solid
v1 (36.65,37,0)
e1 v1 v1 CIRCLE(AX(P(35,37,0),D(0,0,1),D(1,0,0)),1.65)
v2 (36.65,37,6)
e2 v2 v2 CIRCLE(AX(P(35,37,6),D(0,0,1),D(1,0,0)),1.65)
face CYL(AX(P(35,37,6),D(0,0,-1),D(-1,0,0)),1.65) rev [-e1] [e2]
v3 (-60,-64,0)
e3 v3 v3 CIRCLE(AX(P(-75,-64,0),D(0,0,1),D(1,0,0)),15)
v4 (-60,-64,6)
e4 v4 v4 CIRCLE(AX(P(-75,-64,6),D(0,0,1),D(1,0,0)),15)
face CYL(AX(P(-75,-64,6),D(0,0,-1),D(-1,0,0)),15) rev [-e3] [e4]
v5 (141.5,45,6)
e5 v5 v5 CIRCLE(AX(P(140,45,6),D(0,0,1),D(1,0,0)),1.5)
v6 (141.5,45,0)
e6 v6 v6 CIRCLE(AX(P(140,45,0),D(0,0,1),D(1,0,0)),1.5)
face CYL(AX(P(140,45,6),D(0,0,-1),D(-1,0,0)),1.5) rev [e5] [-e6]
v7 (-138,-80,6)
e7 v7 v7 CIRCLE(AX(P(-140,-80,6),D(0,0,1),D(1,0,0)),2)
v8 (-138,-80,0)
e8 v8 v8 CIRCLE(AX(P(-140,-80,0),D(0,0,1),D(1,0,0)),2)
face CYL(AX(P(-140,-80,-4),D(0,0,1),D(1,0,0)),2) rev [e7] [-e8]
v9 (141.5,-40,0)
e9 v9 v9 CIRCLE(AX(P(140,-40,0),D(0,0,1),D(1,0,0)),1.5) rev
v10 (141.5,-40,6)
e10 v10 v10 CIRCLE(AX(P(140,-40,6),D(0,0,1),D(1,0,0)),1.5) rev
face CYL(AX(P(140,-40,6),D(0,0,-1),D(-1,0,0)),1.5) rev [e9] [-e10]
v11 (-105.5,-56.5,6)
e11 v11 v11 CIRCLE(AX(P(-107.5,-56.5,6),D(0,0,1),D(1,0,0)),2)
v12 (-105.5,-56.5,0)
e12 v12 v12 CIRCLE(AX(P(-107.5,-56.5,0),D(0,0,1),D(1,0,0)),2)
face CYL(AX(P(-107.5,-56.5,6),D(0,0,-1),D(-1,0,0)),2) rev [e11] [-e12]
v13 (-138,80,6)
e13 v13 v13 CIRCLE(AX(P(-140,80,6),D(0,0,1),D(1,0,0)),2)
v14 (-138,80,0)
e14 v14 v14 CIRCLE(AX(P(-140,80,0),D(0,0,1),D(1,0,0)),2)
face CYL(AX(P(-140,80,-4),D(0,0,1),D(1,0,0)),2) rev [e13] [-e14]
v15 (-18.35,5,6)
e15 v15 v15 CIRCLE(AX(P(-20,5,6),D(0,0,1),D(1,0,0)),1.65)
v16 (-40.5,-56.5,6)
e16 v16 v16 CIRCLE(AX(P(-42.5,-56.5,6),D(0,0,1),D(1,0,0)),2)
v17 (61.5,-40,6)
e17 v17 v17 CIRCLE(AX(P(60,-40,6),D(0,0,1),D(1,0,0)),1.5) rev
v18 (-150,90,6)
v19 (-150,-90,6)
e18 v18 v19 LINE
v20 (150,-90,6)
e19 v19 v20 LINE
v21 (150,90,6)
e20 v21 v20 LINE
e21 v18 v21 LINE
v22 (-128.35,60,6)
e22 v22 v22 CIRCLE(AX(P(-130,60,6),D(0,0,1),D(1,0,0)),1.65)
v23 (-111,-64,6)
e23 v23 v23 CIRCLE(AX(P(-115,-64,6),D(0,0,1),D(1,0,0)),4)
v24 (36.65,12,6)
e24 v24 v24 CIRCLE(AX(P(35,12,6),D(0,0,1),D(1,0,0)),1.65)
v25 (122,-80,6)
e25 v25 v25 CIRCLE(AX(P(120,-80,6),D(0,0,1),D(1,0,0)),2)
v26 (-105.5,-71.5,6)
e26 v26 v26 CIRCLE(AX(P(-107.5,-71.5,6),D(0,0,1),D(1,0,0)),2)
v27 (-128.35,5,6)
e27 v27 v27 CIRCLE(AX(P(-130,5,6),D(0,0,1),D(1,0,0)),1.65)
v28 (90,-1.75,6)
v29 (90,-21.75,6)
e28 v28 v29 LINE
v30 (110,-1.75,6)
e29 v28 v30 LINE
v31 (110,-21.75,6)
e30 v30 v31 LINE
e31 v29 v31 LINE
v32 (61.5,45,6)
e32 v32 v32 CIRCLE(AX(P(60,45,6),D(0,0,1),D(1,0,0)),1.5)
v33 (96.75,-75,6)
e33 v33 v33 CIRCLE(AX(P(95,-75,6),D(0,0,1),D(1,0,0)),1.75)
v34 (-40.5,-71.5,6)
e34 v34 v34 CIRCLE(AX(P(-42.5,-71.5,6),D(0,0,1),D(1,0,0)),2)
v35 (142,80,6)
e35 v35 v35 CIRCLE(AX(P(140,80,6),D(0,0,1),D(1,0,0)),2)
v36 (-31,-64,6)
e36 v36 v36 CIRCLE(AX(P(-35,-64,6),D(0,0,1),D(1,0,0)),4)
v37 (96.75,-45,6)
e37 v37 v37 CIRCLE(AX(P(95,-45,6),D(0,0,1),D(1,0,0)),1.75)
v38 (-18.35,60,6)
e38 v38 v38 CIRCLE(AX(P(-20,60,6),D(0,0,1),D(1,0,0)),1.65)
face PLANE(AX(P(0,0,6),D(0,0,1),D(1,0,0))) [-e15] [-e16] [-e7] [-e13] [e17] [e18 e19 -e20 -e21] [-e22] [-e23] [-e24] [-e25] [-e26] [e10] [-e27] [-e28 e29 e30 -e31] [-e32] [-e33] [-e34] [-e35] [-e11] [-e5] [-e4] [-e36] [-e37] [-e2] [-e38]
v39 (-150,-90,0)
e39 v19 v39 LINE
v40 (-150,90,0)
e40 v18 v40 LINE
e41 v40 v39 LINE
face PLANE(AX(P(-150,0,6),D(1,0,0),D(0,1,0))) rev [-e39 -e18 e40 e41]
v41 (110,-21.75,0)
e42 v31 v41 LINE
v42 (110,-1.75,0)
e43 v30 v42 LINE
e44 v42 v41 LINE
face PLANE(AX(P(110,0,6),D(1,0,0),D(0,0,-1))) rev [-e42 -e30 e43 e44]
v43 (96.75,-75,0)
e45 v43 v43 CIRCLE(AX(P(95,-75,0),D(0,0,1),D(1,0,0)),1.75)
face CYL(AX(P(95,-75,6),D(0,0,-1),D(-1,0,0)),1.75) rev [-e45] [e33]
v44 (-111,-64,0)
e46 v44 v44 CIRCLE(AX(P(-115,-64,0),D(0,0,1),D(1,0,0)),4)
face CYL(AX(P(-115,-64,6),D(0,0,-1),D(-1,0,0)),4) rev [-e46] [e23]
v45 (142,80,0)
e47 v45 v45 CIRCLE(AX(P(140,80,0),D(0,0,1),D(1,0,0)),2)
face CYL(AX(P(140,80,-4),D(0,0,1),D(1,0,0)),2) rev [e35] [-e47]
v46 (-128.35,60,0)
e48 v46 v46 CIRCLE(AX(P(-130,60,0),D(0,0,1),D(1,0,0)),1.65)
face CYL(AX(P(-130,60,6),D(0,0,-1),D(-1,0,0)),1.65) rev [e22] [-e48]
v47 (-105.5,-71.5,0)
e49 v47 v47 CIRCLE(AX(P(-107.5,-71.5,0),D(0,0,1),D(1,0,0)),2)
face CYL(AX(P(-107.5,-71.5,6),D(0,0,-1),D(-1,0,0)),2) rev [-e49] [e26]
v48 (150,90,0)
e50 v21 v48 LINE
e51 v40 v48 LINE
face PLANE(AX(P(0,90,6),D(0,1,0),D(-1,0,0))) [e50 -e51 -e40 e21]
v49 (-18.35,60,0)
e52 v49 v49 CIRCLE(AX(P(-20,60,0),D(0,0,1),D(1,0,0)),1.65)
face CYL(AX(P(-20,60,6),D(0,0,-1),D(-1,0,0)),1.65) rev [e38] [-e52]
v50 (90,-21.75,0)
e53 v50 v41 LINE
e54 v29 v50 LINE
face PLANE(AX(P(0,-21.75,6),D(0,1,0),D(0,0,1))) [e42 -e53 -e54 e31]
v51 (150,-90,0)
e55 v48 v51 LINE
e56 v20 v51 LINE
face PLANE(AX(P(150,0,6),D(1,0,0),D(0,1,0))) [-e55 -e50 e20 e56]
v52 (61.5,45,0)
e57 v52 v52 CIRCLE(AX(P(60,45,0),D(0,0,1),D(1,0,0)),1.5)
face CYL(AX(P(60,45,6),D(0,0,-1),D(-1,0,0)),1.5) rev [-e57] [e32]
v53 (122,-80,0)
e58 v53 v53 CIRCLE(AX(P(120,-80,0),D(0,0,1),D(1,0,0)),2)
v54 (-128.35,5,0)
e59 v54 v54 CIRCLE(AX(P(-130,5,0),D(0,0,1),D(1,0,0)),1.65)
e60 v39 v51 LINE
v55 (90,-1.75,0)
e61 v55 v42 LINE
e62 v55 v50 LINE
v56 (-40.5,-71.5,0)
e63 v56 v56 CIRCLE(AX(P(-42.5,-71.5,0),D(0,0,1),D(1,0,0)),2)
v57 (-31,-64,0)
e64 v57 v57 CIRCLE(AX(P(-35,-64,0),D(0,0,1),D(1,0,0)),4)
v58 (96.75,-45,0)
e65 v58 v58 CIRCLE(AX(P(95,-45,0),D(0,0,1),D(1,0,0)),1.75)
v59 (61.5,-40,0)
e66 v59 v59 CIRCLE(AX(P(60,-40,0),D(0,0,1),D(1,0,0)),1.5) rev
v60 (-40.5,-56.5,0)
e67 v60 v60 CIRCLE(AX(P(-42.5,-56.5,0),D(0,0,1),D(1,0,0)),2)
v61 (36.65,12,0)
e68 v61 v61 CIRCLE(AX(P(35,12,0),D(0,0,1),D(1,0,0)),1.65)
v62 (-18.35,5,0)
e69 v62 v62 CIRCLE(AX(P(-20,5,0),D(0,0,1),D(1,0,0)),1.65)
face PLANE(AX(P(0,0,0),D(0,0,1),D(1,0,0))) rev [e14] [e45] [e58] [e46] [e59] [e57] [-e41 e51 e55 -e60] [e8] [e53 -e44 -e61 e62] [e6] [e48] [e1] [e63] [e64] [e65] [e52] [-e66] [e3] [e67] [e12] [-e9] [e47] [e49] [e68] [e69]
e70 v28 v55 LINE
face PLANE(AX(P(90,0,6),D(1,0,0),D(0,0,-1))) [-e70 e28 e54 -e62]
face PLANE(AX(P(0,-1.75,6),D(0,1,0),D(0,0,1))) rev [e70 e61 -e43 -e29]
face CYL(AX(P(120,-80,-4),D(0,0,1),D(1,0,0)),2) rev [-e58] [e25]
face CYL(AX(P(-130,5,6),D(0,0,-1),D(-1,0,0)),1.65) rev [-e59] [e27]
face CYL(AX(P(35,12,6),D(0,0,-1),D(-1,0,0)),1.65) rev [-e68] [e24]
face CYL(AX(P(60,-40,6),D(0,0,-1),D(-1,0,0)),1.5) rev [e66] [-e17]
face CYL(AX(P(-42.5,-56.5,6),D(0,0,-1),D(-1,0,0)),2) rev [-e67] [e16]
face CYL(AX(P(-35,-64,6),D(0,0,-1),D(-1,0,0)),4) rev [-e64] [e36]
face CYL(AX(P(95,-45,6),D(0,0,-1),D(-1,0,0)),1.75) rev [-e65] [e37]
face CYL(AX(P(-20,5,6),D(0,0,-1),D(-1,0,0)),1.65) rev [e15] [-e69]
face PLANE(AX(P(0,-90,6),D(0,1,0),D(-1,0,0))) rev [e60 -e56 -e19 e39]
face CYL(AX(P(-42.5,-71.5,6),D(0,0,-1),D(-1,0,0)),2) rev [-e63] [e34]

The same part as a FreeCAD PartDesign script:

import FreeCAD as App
import Part
import Sketcher


def add_polygon(sketch, points):
    """Adds a closed chain of lines whose ends are joined by coincident constraints."""
    first, n = sketch.GeometryCount, len(points)
    for a, b in zip(points, points[1:] + points[:1]):
        sketch.addGeometry(Part.LineSegment(App.Vector(*a, 0), App.Vector(*b, 0)), False)
    for i in range(n):
        sketch.addConstraint(Sketcher.Constraint("Coincident", first + i, 2, first + (i + 1) % n, 1))

doc = App.newDocument("Part")
params = doc.addObject("Spreadsheet::Sheet", "Params")
for row, (alias, value) in enumerate([
    ("sketch1_diameter", "4 mm"),
    ("sketch1_diameter2", "8 mm"),
    ("sketch1_diameter3", "30 mm"),
    ("sketch1_diameter4", "3 mm"),
    ("sketch1_diameter5", "3.5 mm"),
    ("pad1_length", "6 mm"),
    ("sketch2_diameter", "4 mm"),
    ("pocket1_length", "10 mm"),
], start=1):
    params.set(f"A{row}", alias)
    params.set(f"B{row}", "=" + value)
    params.setAlias(f"B{row}", alias)

body = doc.addObject("PartDesign::Body", "Body")

sketch1 = doc.addObject("Sketcher::SketchObject", "Sketch")
body.addObject(sketch1)
sketch1.AttachmentSupport = (doc.XY_Plane, [""])
sketch1.MapMode = "FlatFace"
add_polygon(sketch1, [(-150, 90), (-150, -90), (150, -90), (150, 90)])
sketch1.addGeometry(Part.Circle(App.Vector(-107.5, -71.5, 0), App.Vector(0, 0, 1), 2), False)
sketch1.addGeometry(Part.Circle(App.Vector(-115, -64, 0), App.Vector(0, 0, 1), 4), False)
sketch1.addGeometry(Part.Circle(App.Vector(-75, -64, 0), App.Vector(0, 0, 1), 15), False)
sketch1.addGeometry(Part.Circle(App.Vector(-107.5, -56.5, 0), App.Vector(0, 0, 1), 2), False)
sketch1.addGeometry(Part.Circle(App.Vector(-42.5, -71.5, 0), App.Vector(0, 0, 1), 2), False)
sketch1.addGeometry(Part.Circle(App.Vector(-35, -64, 0), App.Vector(0, 0, 1), 4), False)
sketch1.addGeometry(Part.Circle(App.Vector(-42.5, -56.5, 0), App.Vector(0, 0, 1), 2), False)
sketch1.addGeometry(Part.Circle(App.Vector(95, -75, 0), App.Vector(0, 0, 1), 1.8), False)
sketch1.addGeometry(Part.Circle(App.Vector(95, -45, 0), App.Vector(0, 0, 1), 1.8), False)
sketch1.addGeometry(Part.Circle(App.Vector(60, -40, 0), App.Vector(0, 0, 1), 1.5), False)
sketch1.addGeometry(Part.Circle(App.Vector(140, -40, 0), App.Vector(0, 0, 1), 1.5), False)
add_polygon(sketch1, [(110, -21.8), (90, -21.8), (90, -1.8), (110, -1.8)])
sketch1.addGeometry(Part.Circle(App.Vector(-130, 5, 0), App.Vector(0, 0, 1), 1.6), False)
sketch1.addGeometry(Part.Circle(App.Vector(-20, 5, 0), App.Vector(0, 0, 1), 1.6), False)
sketch1.addGeometry(Part.Circle(App.Vector(-130, 60, 0), App.Vector(0, 0, 1), 1.6), False)
sketch1.addGeometry(Part.Circle(App.Vector(-20, 60, 0), App.Vector(0, 0, 1), 1.6), False)
sketch1.addGeometry(Part.Circle(App.Vector(35, 12, 0), App.Vector(0, 0, 1), 1.6), False)
sketch1.addGeometry(Part.Circle(App.Vector(35, 37, 0), App.Vector(0, 0, 1), 1.6), False)
sketch1.addGeometry(Part.Circle(App.Vector(60, 45, 0), App.Vector(0, 0, 1), 1.5), False)
sketch1.addGeometry(Part.Circle(App.Vector(140, 45, 0), App.Vector(0, 0, 1), 1.5), False)
sketch1.addConstraint(Sketcher.Constraint("Vertical", 0))
sketch1.addConstraint(Sketcher.Constraint("Horizontal", 1))
sketch1.addConstraint(Sketcher.Constraint("Vertical", 2))
sketch1.addConstraint(Sketcher.Constraint("Horizontal", 3))
sketch1.addConstraint(Sketcher.Constraint("Horizontal", 15))
sketch1.addConstraint(Sketcher.Constraint("Vertical", 16))
sketch1.addConstraint(Sketcher.Constraint("Horizontal", 17))
sketch1.addConstraint(Sketcher.Constraint("Vertical", 18))
sketch1.addConstraint(Sketcher.Constraint("Equal", 4, 7))
sketch1.addConstraint(Sketcher.Constraint("Equal", 7, 8))
sketch1.addConstraint(Sketcher.Constraint("Equal", 5, 9))
sketch1.addConstraint(Sketcher.Constraint("Equal", 8, 10))
sketch1.addConstraint(Sketcher.Constraint("Equal", 11, 12))
sketch1.addConstraint(Sketcher.Constraint("Equal", 13, 14))
sketch1.addConstraint(Sketcher.Constraint("Equal", 19, 20))
sketch1.addConstraint(Sketcher.Constraint("Equal", 20, 21))
sketch1.addConstraint(Sketcher.Constraint("Equal", 21, 22))
sketch1.addConstraint(Sketcher.Constraint("Equal", 22, 23))
sketch1.addConstraint(Sketcher.Constraint("Equal", 23, 24))
sketch1.addConstraint(Sketcher.Constraint("Equal", 14, 25))
sketch1.addConstraint(Sketcher.Constraint("Equal", 25, 26))
sketch1.addConstraint(Sketcher.Constraint("Symmetric", 0, 2, 2, 2, -1, 1))
sketch1.addConstraint(Sketcher.Constraint("Horizontal", 5, 3, 6, 3))
sketch1.addConstraint(Sketcher.Constraint("Horizontal", 4, 3, 8, 3))
sketch1.addConstraint(Sketcher.Constraint("Horizontal", 6, 3, 9, 3))
sketch1.addConstraint(Sketcher.Constraint("Horizontal", 7, 3, 10, 3))
sketch1.addConstraint(Sketcher.Constraint("Horizontal", 13, 3, 14, 3))
sketch1.addConstraint(Sketcher.Constraint("Horizontal", 19, 3, 20, 3))
sketch1.addConstraint(Sketcher.Constraint("Horizontal", 21, 3, 22, 3))
sketch1.addConstraint(Sketcher.Constraint("Horizontal", 25, 3, 26, 3))
sketch1.addConstraint(Sketcher.Constraint("Vertical", 4, 3, 7, 3))
sketch1.addConstraint(Sketcher.Constraint("Vertical", 8, 3, 10, 3))
sketch1.addConstraint(Sketcher.Constraint("Vertical", 11, 3, 12, 3))
sketch1.addConstraint(Sketcher.Constraint("Vertical", 19, 3, 21, 3))
sketch1.addConstraint(Sketcher.Constraint("Vertical", 20, 3, 22, 3))
sketch1.addConstraint(Sketcher.Constraint("Vertical", 23, 3, 24, 3))
sketch1.addConstraint(Sketcher.Constraint("Vertical", 13, 3, 25, 3))
sketch1.addConstraint(Sketcher.Constraint("Vertical", 14, 3, 26, 3))
sketch1.addConstraint(Sketcher.Constraint("Equal", 17, 16))
sketch1.addConstraint(Sketcher.Constraint("Diameter", 4, 4.0))
sketch1.addConstraint(Sketcher.Constraint("Diameter", 5, 8.0))
sketch1.addConstraint(Sketcher.Constraint("Diameter", 6, 30.0))
sketch1.addConstraint(Sketcher.Constraint("Diameter", 13, 3.0))
sketch1.addConstraint(Sketcher.Constraint("Diameter", 11, 3.5))
sketch1.addConstraint(Sketcher.Constraint("Diameter", 19, 3.3))
sketch1.addConstraint(Sketcher.Constraint("DistanceX", 1, 1, 1, 2, 300.0))
sketch1.addConstraint(Sketcher.Constraint("DistanceX", 15, 2, 15, 1, 20.0))
sketch1.addConstraint(Sketcher.Constraint("DistanceY", 0, 2, 0, 1, 180.0))
sketch1.addConstraint(Sketcher.Constraint("DistanceX", 5, 3, -1, 1, 115.0))
sketch1.addConstraint(Sketcher.Constraint("DistanceY", 5, 3, -1, 1, 64.0))
sketch1.addConstraint(Sketcher.Constraint("DistanceX", 6, 3, -1, 1, 75.0))
sketch1.addConstraint(Sketcher.Constraint("DistanceX", 9, 3, -1, 1, 35.0))
sketch1.addConstraint(Sketcher.Constraint("DistanceX", -1, 1, 11, 3, 95.0))
sketch1.addConstraint(Sketcher.Constraint("DistanceY", 11, 3, -1, 1, 75.0))
sketch1.addConstraint(Sketcher.Constraint("DistanceY", 12, 3, -1, 1, 45.0))
sketch1.addConstraint(Sketcher.Constraint("DistanceX", -1, 1, 13, 3, 60.0))
sketch1.addConstraint(Sketcher.Constraint("DistanceY", 13, 3, -1, 1, 40.0))
sketch1.addConstraint(Sketcher.Constraint("DistanceX", -1, 1, 14, 3, 140.0))
sketch1.addConstraint(Sketcher.Constraint("DistanceX", 19, 3, -1, 1, 130.0))
sketch1.addConstraint(Sketcher.Constraint("DistanceY", -1, 1, 19, 3, 5.0))
sketch1.addConstraint(Sketcher.Constraint("DistanceX", 20, 3, -1, 1, 20.0))
sketch1.addConstraint(Sketcher.Constraint("DistanceY", -1, 1, 21, 3, 60.0))
sketch1.addConstraint(Sketcher.Constraint("DistanceX", -1, 1, 23, 3, 35.0))
sketch1.addConstraint(Sketcher.Constraint("DistanceY", -1, 1, 23, 3, 12.0))
sketch1.addConstraint(Sketcher.Constraint("DistanceY", -1, 1, 24, 3, 37.0))
sketch1.addConstraint(Sketcher.Constraint("DistanceY", -1, 1, 25, 3, 45.0))
sketch1.addConstraint(Sketcher.Constraint("DistanceX", -1, 1, 15, 2, 90.0))
sketch1.addConstraint(Sketcher.Constraint("DistanceY", 4, 3, 7, 3, 15.0))
sketch1.addConstraint(Sketcher.Constraint("DistanceX", 4, 3, 8, 3, 65.0))
sketch1.addConstraint(Sketcher.Constraint("DistanceX", 4, 3, -1, 1, 107.5))
sketch1.addConstraint(Sketcher.Constraint("DistanceY", 4, 3, -1, 1, 71.5))
sketch1.addConstraint(Sketcher.Constraint("DistanceY", 15, 2, -1, 1, 21.75))
sketch1.setExpression("Constraints[47]", "Params.sketch1_diameter")
sketch1.setExpression("Constraints[48]", "Params.sketch1_diameter2")
sketch1.setExpression("Constraints[49]", "Params.sketch1_diameter3")
sketch1.setExpression("Constraints[50]", "Params.sketch1_diameter4")
sketch1.setExpression("Constraints[51]", "Params.sketch1_diameter5")
pad1 = doc.addObject("PartDesign::Pad", "Pad")
body.addObject(pad1)
pad1.Profile = sketch1
pad1.setExpression("Length", "Params.pad1_length")

sketch2 = doc.addObject("Sketcher::SketchObject", "Sketch001")
body.addObject(sketch2)
sketch2.AttachmentSupport = (doc.XY_Plane, [""])
sketch2.MapMode = "FlatFace"
sketch2.AttachmentOffset = App.Placement(App.Vector(0, 0, 6), App.Rotation())
sketch2.addGeometry(Part.Circle(App.Vector(-140, 80, 0), App.Vector(0, 0, 1), 2), False)
sketch2.addGeometry(Part.Circle(App.Vector(140, 80, 0), App.Vector(0, 0, 1), 2), False)
sketch2.addGeometry(Part.Circle(App.Vector(120, -80, 0), App.Vector(0, 0, 1), 2), False)
sketch2.addGeometry(Part.Circle(App.Vector(-140, -80, 0), App.Vector(0, 0, 1), 2), False)
sketch2.addConstraint(Sketcher.Constraint("Equal", 0, 1))
sketch2.addConstraint(Sketcher.Constraint("Equal", 1, 2))
sketch2.addConstraint(Sketcher.Constraint("Equal", 2, 3))
sketch2.addConstraint(Sketcher.Constraint("Symmetric", 1, 3, 3, 3, -1, 1))
sketch2.addConstraint(Sketcher.Constraint("Symmetric", 0, 3, 1, 3, -2))
sketch2.addConstraint(Sketcher.Constraint("Horizontal", 2, 3, 3, 3))
sketch2.addConstraint(Sketcher.Constraint("Diameter", 0, 4.0))
sketch2.addConstraint(Sketcher.Constraint("DistanceX", 0, 3, -1, 1, 140.0))
sketch2.addConstraint(Sketcher.Constraint("DistanceY", -1, 1, 0, 3, 80.0))
sketch2.addConstraint(Sketcher.Constraint("DistanceX", -1, 1, 2, 3, 120.0))
sketch2.setExpression("Constraints[6]", "Params.sketch2_diameter")
pocket1 = doc.addObject("PartDesign::Pocket", "Pocket")
body.addObject(pocket1)
pocket1.Profile = sketch2
pocket1.setExpression("Length", "Params.pocket1_length")

doc.recompute()
